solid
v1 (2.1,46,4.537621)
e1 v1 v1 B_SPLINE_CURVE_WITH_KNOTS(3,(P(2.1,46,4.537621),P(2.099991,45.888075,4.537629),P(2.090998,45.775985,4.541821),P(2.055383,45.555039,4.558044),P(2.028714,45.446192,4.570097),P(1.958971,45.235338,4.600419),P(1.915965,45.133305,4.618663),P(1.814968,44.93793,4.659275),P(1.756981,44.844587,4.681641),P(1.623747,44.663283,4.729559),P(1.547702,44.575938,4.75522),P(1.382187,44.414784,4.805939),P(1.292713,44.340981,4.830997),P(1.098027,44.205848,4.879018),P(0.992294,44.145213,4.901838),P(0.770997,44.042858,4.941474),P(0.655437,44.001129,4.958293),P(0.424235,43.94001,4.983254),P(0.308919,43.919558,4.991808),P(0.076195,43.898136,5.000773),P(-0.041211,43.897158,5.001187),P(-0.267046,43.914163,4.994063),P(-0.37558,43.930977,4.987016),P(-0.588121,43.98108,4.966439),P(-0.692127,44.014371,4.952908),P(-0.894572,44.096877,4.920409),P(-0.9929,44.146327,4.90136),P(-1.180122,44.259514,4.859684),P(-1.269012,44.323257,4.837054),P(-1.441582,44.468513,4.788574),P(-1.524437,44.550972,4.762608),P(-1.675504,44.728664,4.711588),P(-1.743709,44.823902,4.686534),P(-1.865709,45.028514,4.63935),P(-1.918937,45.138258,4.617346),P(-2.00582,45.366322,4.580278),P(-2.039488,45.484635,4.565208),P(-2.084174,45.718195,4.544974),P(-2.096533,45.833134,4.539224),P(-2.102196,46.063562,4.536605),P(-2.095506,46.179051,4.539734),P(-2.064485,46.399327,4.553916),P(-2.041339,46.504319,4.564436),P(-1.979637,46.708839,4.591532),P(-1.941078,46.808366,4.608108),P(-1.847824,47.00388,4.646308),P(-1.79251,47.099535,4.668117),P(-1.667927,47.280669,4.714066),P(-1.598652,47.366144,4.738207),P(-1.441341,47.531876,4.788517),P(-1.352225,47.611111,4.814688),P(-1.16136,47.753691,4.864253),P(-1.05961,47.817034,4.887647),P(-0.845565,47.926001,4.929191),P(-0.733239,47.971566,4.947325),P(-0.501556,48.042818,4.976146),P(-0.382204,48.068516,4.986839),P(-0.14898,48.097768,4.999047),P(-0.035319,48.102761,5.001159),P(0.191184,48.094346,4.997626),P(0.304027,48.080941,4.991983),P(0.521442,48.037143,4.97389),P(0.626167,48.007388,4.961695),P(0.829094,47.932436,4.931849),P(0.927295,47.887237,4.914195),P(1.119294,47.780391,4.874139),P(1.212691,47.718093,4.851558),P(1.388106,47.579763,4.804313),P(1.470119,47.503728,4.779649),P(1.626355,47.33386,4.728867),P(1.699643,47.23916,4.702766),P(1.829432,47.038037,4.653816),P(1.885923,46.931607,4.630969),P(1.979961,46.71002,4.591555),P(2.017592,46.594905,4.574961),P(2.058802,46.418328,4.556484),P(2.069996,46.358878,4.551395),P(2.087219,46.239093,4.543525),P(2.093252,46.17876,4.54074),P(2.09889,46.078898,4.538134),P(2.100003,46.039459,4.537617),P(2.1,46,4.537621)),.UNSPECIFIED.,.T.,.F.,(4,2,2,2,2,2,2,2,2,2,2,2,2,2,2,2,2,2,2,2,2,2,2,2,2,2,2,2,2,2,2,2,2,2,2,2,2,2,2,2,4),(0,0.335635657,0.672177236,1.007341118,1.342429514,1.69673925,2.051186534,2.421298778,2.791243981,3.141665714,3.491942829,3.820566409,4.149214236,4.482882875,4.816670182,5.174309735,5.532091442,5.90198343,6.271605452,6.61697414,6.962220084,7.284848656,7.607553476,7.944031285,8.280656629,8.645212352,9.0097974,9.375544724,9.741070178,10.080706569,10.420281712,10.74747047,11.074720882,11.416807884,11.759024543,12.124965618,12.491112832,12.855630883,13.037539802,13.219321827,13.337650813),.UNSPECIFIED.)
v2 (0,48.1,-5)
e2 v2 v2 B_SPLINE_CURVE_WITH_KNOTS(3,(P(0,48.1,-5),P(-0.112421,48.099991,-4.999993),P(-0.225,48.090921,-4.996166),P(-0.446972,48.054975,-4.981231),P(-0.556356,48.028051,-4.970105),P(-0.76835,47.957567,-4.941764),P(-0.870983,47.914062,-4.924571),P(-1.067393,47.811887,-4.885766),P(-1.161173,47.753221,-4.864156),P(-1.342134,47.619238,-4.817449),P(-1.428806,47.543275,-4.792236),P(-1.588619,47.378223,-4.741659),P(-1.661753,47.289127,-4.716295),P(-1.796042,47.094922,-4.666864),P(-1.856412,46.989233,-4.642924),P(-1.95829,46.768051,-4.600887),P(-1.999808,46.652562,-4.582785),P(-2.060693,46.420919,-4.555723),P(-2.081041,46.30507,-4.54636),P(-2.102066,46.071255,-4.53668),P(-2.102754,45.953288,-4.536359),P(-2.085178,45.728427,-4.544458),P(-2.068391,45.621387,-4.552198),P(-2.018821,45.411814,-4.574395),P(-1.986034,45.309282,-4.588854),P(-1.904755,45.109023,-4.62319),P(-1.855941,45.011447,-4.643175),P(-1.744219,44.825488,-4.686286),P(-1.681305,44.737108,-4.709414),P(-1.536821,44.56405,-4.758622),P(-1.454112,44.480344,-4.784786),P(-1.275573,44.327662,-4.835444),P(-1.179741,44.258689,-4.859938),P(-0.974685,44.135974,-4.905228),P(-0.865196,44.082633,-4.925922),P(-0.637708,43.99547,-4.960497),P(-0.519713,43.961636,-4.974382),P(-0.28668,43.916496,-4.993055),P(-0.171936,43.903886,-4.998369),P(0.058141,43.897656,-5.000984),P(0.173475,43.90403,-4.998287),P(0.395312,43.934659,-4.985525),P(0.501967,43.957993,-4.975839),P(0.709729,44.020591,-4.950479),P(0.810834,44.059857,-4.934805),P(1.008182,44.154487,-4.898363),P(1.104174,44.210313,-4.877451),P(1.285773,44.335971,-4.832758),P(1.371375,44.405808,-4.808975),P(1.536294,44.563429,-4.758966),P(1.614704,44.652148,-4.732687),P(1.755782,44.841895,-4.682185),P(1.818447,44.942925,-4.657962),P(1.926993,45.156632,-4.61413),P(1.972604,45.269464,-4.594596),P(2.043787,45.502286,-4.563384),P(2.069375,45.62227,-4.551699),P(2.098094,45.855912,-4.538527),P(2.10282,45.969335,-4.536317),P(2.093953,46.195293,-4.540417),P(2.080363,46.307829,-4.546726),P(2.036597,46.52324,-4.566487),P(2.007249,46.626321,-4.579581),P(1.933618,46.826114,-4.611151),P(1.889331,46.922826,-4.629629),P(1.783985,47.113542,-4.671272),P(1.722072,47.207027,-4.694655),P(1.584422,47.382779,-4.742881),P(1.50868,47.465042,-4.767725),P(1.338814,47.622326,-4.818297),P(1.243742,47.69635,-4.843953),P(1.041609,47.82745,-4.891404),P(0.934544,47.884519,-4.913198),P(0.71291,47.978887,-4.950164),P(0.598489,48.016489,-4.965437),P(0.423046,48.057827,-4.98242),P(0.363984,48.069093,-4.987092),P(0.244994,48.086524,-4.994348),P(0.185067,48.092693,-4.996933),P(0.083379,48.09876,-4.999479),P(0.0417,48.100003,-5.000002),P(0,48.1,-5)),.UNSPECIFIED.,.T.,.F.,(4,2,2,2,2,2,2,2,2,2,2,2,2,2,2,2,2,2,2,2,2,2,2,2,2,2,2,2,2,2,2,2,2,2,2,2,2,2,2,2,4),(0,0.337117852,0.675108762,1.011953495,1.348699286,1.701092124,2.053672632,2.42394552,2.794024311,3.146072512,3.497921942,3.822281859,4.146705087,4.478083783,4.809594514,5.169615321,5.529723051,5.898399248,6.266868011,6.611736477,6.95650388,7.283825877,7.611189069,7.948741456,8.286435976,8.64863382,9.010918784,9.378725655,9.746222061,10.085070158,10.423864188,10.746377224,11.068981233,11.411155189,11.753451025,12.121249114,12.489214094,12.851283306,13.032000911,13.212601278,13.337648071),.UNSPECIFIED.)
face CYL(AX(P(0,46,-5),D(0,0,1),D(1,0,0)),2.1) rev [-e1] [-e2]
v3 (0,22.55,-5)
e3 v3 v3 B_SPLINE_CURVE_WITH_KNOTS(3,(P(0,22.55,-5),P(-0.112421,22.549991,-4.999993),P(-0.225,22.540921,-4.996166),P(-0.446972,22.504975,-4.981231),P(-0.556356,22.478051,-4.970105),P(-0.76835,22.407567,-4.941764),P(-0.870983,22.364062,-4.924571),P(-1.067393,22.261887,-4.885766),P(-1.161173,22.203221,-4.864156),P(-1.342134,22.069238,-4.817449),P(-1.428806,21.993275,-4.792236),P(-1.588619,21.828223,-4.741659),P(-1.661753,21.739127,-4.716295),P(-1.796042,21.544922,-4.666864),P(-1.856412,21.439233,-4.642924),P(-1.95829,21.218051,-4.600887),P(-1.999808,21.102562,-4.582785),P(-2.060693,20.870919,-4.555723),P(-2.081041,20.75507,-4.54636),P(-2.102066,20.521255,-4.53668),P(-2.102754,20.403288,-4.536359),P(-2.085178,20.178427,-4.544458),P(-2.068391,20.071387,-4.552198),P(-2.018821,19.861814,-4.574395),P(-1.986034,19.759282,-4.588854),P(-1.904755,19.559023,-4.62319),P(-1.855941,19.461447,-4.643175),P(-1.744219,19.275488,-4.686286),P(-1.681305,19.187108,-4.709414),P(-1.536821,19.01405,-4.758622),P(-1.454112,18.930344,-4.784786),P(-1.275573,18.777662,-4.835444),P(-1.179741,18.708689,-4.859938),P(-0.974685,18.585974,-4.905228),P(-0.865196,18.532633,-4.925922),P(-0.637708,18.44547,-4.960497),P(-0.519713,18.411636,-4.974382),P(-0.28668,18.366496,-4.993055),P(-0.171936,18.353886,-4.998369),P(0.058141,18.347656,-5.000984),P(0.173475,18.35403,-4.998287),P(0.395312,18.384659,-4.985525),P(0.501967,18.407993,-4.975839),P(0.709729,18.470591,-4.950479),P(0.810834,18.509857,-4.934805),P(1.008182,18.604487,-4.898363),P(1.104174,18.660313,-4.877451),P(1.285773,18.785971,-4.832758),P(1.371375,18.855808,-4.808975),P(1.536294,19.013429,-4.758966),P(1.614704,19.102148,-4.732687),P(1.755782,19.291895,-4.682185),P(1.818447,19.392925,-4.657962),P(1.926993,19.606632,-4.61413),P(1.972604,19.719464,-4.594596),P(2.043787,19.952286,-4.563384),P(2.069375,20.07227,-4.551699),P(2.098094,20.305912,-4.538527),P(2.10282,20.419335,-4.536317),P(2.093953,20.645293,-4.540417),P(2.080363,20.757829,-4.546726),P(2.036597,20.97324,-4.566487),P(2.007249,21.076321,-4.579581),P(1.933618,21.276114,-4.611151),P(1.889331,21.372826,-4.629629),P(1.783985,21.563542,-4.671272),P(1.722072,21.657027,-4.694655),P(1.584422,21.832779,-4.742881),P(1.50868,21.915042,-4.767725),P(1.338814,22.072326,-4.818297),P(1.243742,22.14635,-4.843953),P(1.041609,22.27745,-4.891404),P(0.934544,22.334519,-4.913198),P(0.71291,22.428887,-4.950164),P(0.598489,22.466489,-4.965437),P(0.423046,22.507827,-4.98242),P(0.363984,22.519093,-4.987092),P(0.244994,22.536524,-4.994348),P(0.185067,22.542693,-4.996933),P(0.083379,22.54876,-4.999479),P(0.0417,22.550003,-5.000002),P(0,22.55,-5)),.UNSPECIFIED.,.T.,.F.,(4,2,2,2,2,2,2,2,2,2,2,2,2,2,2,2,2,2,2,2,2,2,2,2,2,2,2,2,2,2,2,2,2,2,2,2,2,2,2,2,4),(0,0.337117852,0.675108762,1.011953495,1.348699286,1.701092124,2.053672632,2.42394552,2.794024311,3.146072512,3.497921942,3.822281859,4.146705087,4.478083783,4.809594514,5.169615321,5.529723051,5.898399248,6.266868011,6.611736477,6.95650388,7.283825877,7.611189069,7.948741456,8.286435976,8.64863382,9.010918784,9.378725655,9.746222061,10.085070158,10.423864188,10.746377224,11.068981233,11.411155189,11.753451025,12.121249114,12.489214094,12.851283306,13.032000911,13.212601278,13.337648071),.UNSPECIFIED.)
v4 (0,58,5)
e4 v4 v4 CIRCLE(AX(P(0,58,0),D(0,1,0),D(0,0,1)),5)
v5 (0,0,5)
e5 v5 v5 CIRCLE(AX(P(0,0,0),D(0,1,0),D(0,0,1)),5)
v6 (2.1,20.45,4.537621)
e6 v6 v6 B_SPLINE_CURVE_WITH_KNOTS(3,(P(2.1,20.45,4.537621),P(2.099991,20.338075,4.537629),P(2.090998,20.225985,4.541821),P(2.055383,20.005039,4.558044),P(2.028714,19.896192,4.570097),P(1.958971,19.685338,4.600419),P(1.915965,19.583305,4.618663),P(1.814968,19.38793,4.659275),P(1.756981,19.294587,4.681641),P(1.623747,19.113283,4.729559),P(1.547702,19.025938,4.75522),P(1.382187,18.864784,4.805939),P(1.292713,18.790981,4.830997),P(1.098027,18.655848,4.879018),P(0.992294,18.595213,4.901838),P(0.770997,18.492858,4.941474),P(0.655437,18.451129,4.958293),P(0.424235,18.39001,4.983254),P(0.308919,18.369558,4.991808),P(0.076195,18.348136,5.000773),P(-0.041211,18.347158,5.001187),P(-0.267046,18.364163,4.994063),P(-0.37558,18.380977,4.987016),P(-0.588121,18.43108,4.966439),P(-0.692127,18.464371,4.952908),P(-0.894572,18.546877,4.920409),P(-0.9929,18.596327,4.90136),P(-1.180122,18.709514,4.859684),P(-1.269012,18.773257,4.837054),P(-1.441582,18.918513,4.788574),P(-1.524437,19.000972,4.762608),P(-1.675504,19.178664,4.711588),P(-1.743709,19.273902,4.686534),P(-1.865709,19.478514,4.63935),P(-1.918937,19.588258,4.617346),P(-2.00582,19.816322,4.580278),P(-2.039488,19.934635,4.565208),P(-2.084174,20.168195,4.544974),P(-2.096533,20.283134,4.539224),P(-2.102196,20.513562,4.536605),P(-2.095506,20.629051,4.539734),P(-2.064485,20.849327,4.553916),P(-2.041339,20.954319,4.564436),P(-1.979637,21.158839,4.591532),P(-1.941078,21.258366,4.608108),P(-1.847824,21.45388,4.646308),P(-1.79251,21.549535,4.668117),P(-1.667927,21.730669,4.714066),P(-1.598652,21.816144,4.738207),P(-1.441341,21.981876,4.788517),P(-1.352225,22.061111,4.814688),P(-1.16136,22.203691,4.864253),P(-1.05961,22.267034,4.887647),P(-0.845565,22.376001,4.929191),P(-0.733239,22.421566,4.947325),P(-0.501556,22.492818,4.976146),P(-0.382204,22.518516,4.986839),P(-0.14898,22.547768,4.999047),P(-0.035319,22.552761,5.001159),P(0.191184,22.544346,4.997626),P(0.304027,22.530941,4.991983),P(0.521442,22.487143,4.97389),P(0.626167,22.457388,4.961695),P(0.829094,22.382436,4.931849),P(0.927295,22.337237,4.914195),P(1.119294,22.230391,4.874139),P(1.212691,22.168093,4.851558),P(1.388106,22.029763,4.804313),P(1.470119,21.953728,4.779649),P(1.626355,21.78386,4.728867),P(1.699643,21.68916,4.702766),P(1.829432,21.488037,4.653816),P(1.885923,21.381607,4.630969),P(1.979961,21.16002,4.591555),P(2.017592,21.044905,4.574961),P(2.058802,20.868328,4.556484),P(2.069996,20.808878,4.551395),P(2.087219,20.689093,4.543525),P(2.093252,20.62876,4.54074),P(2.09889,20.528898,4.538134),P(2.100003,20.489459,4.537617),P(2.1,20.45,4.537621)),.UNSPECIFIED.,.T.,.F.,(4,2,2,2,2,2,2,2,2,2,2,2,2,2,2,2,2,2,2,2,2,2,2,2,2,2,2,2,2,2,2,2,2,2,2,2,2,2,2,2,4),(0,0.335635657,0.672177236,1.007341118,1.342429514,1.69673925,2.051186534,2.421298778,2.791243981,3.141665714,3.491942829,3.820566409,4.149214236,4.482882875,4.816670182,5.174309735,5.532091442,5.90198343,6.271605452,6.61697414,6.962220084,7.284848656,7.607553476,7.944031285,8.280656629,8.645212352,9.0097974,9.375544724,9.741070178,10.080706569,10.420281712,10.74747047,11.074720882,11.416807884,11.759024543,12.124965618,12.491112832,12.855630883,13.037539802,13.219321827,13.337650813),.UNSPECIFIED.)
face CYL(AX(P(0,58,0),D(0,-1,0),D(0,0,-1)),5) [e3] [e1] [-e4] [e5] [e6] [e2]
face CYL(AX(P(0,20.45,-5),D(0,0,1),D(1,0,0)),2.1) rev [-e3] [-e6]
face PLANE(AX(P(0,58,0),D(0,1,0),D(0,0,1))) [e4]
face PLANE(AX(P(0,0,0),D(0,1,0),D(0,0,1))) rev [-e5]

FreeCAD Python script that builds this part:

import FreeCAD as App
import Part
import Sketcher
from FreeCAD import Vector
Q = App.Units.Quantity

doc = App.newDocument("Part")
params = doc.addObject("Spreadsheet::Sheet", "Params")
for row, (alias, value) in enumerate([
    ("sketch1_diameter", "10 mm"),
    ("pad1_length", "58 mm"),
    ("sketch2_diameter", "4.2 mm"),
], start=1):
    params.set(f"A{row}", alias)
    params.set(f"B{row}", "=" + value)
    params.setAlias(f"B{row}", alias)

body = doc.addObject("PartDesign::Body", "Body")

sketch1 = body.newObject("Sketcher::SketchObject", "Sketch")
sketch1.AttachmentSupport = (doc.getObject("XZ_Plane"), [""])
sketch1.MapMode = "FlatFace"
sketch1.addGeometry(Part.Circle(Vector(0, 0, 0), Vector(0, 0, 1), 5), False)
sketch1.addConstraint(Sketcher.Constraint("Coincident", 0, 3, -1, 1))
sketch1.addConstraint(Sketcher.Constraint("Diameter", 0, Q("10 mm")))
sketch1.setExpression("Constraints[1]", "Params.sketch1_diameter")
pad1 = body.newObject("PartDesign::Pad", "Pad")
pad1.Profile = sketch1
pad1.setExpression("Length", "Params.pad1_length")
pad1.Reversed = True

sketch2 = body.newObject("Sketcher::SketchObject", "Sketch001")
sketch2.AttachmentSupport = (doc.getObject("XY_Plane"), [""])
sketch2.MapMode = "FlatFace"
sketch2.addGeometry(Part.Circle(Vector(0, 46, 0), Vector(0, 0, 1), 2.1), False)
sketch2.addGeometry(Part.Circle(Vector(0, 20.4, 0), Vector(0, 0, 1), 2.1), False)
sketch2.addConstraint(Sketcher.Constraint("Equal", 0, 1))
sketch2.addConstraint(Sketcher.Constraint("PointOnObject", 0, 3, -2))
sketch2.addConstraint(Sketcher.Constraint("PointOnObject", 1, 3, -2))
sketch2.addConstraint(Sketcher.Constraint("Diameter", 0, Q("4.2 mm")))
sketch2.addConstraint(Sketcher.Constraint("DistanceY", -1, 1, 0, 3, Q("46 mm")))
sketch2.addConstraint(Sketcher.Constraint("DistanceY", -1, 1, 1, 3, Q("20.45 mm")))
sketch2.setExpression("Constraints[3]", "Params.sketch2_diameter")
pocket1 = body.newObject("PartDesign::Pocket", "Pocket")
pocket1.Profile = sketch2
pocket1.Type = "ThroughAll"
pocket1.Midplane = True

doc.recompute()
